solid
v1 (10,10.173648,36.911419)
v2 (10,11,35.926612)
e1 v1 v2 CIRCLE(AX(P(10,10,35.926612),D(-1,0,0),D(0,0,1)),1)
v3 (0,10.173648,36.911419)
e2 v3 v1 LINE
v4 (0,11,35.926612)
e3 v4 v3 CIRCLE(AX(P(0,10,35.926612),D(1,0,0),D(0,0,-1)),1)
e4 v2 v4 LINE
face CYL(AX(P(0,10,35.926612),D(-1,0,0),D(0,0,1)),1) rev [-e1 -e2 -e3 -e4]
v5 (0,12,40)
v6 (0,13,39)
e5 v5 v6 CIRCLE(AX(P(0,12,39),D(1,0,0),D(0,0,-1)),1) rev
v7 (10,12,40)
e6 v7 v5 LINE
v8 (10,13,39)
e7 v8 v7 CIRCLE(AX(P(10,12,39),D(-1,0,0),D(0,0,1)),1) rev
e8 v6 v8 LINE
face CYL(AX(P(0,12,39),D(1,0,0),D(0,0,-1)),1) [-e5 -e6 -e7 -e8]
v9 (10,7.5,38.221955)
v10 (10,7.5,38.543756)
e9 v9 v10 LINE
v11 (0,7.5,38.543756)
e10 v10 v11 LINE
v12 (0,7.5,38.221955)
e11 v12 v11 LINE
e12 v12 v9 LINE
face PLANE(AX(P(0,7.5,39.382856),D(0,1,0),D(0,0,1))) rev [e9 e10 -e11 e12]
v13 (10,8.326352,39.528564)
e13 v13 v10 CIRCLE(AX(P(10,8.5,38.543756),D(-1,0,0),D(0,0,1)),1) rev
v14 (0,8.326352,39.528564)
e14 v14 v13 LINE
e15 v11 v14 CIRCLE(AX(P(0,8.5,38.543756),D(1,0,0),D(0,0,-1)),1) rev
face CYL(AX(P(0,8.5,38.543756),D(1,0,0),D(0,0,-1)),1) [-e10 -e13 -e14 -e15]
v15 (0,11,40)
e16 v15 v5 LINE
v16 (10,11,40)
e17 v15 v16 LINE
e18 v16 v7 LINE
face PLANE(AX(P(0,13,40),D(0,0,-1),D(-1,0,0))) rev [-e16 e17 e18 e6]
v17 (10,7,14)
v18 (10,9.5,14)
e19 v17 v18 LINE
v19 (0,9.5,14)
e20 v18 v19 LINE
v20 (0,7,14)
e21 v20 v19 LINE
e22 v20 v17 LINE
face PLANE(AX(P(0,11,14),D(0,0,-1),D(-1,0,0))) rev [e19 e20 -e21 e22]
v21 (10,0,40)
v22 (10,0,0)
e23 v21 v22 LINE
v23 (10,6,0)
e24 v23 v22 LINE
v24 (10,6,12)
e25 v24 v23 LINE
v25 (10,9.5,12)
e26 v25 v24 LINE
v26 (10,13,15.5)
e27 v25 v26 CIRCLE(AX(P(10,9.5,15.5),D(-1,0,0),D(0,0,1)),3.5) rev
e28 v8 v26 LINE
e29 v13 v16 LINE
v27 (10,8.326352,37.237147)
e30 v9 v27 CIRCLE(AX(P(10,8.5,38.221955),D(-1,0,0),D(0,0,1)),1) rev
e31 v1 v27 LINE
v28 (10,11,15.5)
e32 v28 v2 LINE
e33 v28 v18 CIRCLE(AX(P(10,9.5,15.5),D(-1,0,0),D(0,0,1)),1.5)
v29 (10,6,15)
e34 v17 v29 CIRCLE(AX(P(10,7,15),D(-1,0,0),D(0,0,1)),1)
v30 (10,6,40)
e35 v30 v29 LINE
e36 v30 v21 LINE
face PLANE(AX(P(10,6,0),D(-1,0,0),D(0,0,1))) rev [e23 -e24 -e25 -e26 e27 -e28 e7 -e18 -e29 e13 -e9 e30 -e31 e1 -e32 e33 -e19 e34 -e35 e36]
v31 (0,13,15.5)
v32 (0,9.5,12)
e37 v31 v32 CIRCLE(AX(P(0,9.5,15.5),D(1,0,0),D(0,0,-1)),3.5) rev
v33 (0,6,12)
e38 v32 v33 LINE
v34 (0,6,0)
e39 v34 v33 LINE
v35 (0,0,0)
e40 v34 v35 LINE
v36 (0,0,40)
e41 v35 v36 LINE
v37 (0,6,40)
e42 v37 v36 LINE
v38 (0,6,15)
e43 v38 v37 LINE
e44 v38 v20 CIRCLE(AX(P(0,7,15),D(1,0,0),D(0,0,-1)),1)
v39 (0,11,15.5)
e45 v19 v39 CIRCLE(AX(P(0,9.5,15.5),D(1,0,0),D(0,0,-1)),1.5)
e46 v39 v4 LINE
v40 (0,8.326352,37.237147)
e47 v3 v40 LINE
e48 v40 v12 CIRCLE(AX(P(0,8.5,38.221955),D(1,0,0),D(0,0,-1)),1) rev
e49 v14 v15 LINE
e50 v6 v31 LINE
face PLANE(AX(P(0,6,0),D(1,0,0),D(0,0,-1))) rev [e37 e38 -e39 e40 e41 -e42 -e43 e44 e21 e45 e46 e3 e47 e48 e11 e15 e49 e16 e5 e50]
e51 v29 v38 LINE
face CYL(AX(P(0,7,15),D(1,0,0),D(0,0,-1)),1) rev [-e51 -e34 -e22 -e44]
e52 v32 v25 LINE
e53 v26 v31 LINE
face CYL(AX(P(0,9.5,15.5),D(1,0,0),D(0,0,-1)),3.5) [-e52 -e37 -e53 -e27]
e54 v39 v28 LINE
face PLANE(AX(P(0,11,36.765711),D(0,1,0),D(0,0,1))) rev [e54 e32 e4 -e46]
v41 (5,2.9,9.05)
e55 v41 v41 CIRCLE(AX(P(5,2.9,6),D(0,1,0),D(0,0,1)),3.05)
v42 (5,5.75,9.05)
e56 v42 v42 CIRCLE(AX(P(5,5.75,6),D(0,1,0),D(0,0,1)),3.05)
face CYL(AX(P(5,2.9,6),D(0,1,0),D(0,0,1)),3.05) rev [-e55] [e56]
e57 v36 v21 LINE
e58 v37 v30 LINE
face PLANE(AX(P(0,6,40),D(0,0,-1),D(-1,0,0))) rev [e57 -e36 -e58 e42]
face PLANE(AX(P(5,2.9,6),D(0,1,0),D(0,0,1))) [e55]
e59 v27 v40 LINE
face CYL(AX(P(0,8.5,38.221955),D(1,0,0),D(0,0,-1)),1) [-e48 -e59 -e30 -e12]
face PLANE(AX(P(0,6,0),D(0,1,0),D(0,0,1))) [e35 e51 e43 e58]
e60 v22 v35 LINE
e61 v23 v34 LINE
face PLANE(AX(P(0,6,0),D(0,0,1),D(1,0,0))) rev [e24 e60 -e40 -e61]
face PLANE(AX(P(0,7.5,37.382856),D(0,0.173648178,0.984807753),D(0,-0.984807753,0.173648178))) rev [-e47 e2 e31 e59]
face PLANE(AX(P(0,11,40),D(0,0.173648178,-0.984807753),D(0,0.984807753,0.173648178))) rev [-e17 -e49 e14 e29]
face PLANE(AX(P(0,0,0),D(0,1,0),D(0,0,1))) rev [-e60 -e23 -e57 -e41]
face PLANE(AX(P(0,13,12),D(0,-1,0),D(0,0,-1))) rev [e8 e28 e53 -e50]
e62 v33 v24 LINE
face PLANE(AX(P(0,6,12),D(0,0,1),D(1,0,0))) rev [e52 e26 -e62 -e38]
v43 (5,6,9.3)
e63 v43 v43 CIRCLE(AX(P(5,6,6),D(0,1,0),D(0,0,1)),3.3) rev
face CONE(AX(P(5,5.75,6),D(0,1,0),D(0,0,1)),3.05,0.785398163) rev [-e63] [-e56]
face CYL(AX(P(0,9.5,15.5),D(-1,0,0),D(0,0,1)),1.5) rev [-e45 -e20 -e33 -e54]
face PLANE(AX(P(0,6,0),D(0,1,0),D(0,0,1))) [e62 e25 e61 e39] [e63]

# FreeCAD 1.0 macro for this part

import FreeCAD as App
import Part
import Sketcher
Q = App.Units.Quantity


def edges_at(feature, points):
    """Names of the edges that pass closest to the given points."""
    edges = feature.Shape.Edges
    near = lambda p: min(range(len(edges)), key=lambda i: edges[i].distToShape(Part.Vertex(*p))[0])
    return sorted({f"Edge{near(p) + 1}" for p in points})

doc = App.newDocument("Part")
body = doc.addObject("PartDesign::Body", "Body")

# Sketch on XZ plane
sketch1 = doc.addObject("Sketcher::SketchObject", "Sketch")
body.addObject(sketch1)
sketch1.AttachmentSupport = (doc.XZ_Plane, [""])
sketch1.MapMode = "FlatFace"
sketch1.addGeometry(Part.LineSegment(App.Vector(0, 0, 0), App.Vector(0, 40, 0)), False)
sketch1.addGeometry(Part.LineSegment(App.Vector(0, 40, 0), App.Vector(10, 40, 0)), False)
sketch1.addGeometry(Part.LineSegment(App.Vector(10, 40, 0), App.Vector(10, 0, 0)), False)
sketch1.addGeometry(Part.LineSegment(App.Vector(10, 0, 0), App.Vector(0, 0, 0)), False)
sketch1.addConstraint(Sketcher.Constraint("Coincident", 0, 2, 1, 1))
sketch1.addConstraint(Sketcher.Constraint("Coincident", 1, 2, 2, 1))
sketch1.addConstraint(Sketcher.Constraint("Coincident", 2, 2, 3, 1))
sketch1.addConstraint(Sketcher.Constraint("Coincident", 3, 2, 0, 1))
sketch1.addConstraint(Sketcher.Constraint("Vertical", 0))
sketch1.addConstraint(Sketcher.Constraint("Horizontal", 1))
sketch1.addConstraint(Sketcher.Constraint("Vertical", 2))
sketch1.addConstraint(Sketcher.Constraint("Horizontal", 3))
sketch1.addConstraint(Sketcher.Constraint("Coincident", 3, 2, -1, 1))
sketch1.addConstraint(Sketcher.Constraint("DistanceX", 1, 1, 1, 2, Q("10 mm")))
sketch1.addConstraint(Sketcher.Constraint("DistanceY", 0, 1, 0, 2, Q("40 mm")))
pad1 = doc.addObject("PartDesign::Pad", "Pad")
body.addObject(pad1)
pad1.Profile = sketch1
pad1.Length = 6
pad1.Reversed = True

# Sketch on XZ plane
sketch2 = doc.addObject("Sketcher::SketchObject", "Sketch001")
body.addObject(sketch2)
sketch2.AttachmentSupport = (doc.XZ_Plane, [""])
sketch2.MapMode = "FlatFace"
sketch2.AttachmentOffset = App.Placement(App.Vector(0, 0, -6), App.Rotation())
sketch2.addGeometry(Part.Circle(App.Vector(5, 6, 0), App.Vector(0, 0, 1), 3), False)
sketch2.addConstraint(Sketcher.Constraint("Diameter", 0, Q("6.1 mm")))
sketch2.addConstraint(Sketcher.Constraint("DistanceX", -1, 1, 0, 3, Q("5 mm")))
sketch2.addConstraint(Sketcher.Constraint("DistanceY", -1, 1, 0, 3, Q("6 mm")))
pocket1 = doc.addObject("PartDesign::Pocket", "Pocket")
body.addObject(pocket1)
pocket1.Profile = sketch2
pocket1.Length = 3.1
pocket1.Reversed = True
doc.recompute()

chamfer = doc.addObject("PartDesign::Chamfer", "Chamfer")
body.addObject(chamfer)
chamfer.Base = (pocket1, edges_at(pocket1, [(1.95, 6, 6)]))
chamfer.Size = 0.25

# Sketch on YZ plane
sketch3 = doc.addObject("Sketcher::SketchObject", "Sketch002")
body.addObject(sketch3)
sketch3.AttachmentSupport = (doc.YZ_Plane, [""])
sketch3.MapMode = "FlatFace"
sketch3.AttachmentOffset = App.Placement(App.Vector(0, 0, 5), App.Rotation())
sketch3.addGeometry(Part.LineSegment(App.Vector(13, 12, 0), App.Vector(6, 12, 0)), False)
sketch3.addGeometry(Part.LineSegment(App.Vector(6, 12, 0), App.Vector(6, 14, 0)), False)
sketch3.addGeometry(Part.LineSegment(App.Vector(6, 14, 0), App.Vector(11, 14, 0)), False)
sketch3.addGeometry(Part.LineSegment(App.Vector(11, 14, 0), App.Vector(11, 36.8, 0)), False)
sketch3.addGeometry(Part.LineSegment(App.Vector(11, 36.8, 0), App.Vector(7.5, 37.4, 0)), False)
sketch3.addGeometry(Part.LineSegment(App.Vector(7.5, 37.4, 0), App.Vector(7.5, 39.4, 0)), False)
sketch3.addGeometry(Part.LineSegment(App.Vector(7.5, 39.4, 0), App.Vector(11, 40, 0)), False)
sketch3.addGeometry(Part.LineSegment(App.Vector(11, 40, 0), App.Vector(13, 40, 0)), False)
sketch3.addGeometry(Part.LineSegment(App.Vector(13, 40, 0), App.Vector(13, 12, 0)), False)
sketch3.addConstraint(Sketcher.Constraint("Coincident", 0, 2, 1, 1))
sketch3.addConstraint(Sketcher.Constraint("Coincident", 1, 2, 2, 1))
sketch3.addConstraint(Sketcher.Constraint("Coincident", 2, 2, 3, 1))
sketch3.addConstraint(Sketcher.Constraint("Coincident", 3, 2, 4, 1))
sketch3.addConstraint(Sketcher.Constraint("Coincident", 4, 2, 5, 1))
sketch3.addConstraint(Sketcher.Constraint("Coincident", 5, 2, 6, 1))
sketch3.addConstraint(Sketcher.Constraint("Coincident", 6, 2, 7, 1))
sketch3.addConstraint(Sketcher.Constraint("Coincident", 7, 2, 8, 1))
sketch3.addConstraint(Sketcher.Constraint("Coincident", 8, 2, 0, 1))
sketch3.addConstraint(Sketcher.Constraint("Horizontal", 0))
sketch3.addConstraint(Sketcher.Constraint("Vertical", 1))
sketch3.addConstraint(Sketcher.Constraint("Horizontal", 2))
sketch3.addConstraint(Sketcher.Constraint("Vertical", 3))
sketch3.addConstraint(Sketcher.Constraint("Vertical", 5))
sketch3.addConstraint(Sketcher.Constraint("Horizontal", 7))
sketch3.addConstraint(Sketcher.Constraint("Vertical", 8))
sketch3.addConstraint(Sketcher.Constraint("Vertical", 3, 2, 6, 2))
sketch3.addConstraint(Sketcher.Constraint("Equal", 7, 1))
sketch3.addConstraint(Sketcher.Constraint("Equal", 1, 5))
sketch3.addConstraint(Sketcher.Constraint("Equal", 4, 6))
sketch3.addConstraint(Sketcher.Constraint("DistanceX", 0, 2, 0, 1, Q("7 mm")))
sketch3.addConstraint(Sketcher.Constraint("DistanceX", 2, 1, 2, 2, Q("5 mm")))
sketch3.addConstraint(Sketcher.Constraint("DistanceY", 8, 2, 8, 1, Q("28 mm")))
sketch3.addConstraint(Sketcher.Constraint("Angle", 4, Q("170 deg")))
sketch3.addConstraint(Sketcher.Constraint("DistanceX", -1, 1, 0, 2, Q("6 mm")))
sketch3.addConstraint(Sketcher.Constraint("DistanceY", -1, 1, 0, 2, Q("12 mm")))
sketch3.addConstraint(Sketcher.Constraint("DistanceX", -1, 1, 4, 2, Q("7.5 mm")))
pad2 = doc.addObject("PartDesign::Pad", "Pad001")
body.addObject(pad2)
pad2.Profile = sketch3
pad2.Length = 10
pad2.Midplane = True
doc.recompute()

fillet = doc.addObject("PartDesign::Fillet", "Fillet")
body.addObject(fillet)
fillet.Base = (pad2, edges_at(pad2, [(5, 11, 14)]))
fillet.Radius = 1.5
doc.recompute()

fillet2 = doc.addObject("PartDesign::Fillet", "Fillet001")
body.addObject(fillet2)
fillet2.Base = (fillet, edges_at(fillet, [(5, 13, 12)]))
fillet2.Radius = 3.5
doc.recompute()

fillet3 = doc.addObject("PartDesign::Fillet", "Fillet002")
body.addObject(fillet3)
fillet3.Base = (fillet2, edges_at(fillet2, [(5, 6, 14)]))
fillet3.Radius = 1
doc.recompute()

fillet4 = doc.addObject("PartDesign::Fillet", "Fillet003")
body.addObject(fillet4)
fillet4.Base = (fillet3, edges_at(fillet3, [
    (5, 11, 36.766),
    (5, 7.5, 37.383),
    (5, 7.5, 39.383),
    (5, 13, 40),
]))
fillet4.Radius = 1

doc.recompute()
